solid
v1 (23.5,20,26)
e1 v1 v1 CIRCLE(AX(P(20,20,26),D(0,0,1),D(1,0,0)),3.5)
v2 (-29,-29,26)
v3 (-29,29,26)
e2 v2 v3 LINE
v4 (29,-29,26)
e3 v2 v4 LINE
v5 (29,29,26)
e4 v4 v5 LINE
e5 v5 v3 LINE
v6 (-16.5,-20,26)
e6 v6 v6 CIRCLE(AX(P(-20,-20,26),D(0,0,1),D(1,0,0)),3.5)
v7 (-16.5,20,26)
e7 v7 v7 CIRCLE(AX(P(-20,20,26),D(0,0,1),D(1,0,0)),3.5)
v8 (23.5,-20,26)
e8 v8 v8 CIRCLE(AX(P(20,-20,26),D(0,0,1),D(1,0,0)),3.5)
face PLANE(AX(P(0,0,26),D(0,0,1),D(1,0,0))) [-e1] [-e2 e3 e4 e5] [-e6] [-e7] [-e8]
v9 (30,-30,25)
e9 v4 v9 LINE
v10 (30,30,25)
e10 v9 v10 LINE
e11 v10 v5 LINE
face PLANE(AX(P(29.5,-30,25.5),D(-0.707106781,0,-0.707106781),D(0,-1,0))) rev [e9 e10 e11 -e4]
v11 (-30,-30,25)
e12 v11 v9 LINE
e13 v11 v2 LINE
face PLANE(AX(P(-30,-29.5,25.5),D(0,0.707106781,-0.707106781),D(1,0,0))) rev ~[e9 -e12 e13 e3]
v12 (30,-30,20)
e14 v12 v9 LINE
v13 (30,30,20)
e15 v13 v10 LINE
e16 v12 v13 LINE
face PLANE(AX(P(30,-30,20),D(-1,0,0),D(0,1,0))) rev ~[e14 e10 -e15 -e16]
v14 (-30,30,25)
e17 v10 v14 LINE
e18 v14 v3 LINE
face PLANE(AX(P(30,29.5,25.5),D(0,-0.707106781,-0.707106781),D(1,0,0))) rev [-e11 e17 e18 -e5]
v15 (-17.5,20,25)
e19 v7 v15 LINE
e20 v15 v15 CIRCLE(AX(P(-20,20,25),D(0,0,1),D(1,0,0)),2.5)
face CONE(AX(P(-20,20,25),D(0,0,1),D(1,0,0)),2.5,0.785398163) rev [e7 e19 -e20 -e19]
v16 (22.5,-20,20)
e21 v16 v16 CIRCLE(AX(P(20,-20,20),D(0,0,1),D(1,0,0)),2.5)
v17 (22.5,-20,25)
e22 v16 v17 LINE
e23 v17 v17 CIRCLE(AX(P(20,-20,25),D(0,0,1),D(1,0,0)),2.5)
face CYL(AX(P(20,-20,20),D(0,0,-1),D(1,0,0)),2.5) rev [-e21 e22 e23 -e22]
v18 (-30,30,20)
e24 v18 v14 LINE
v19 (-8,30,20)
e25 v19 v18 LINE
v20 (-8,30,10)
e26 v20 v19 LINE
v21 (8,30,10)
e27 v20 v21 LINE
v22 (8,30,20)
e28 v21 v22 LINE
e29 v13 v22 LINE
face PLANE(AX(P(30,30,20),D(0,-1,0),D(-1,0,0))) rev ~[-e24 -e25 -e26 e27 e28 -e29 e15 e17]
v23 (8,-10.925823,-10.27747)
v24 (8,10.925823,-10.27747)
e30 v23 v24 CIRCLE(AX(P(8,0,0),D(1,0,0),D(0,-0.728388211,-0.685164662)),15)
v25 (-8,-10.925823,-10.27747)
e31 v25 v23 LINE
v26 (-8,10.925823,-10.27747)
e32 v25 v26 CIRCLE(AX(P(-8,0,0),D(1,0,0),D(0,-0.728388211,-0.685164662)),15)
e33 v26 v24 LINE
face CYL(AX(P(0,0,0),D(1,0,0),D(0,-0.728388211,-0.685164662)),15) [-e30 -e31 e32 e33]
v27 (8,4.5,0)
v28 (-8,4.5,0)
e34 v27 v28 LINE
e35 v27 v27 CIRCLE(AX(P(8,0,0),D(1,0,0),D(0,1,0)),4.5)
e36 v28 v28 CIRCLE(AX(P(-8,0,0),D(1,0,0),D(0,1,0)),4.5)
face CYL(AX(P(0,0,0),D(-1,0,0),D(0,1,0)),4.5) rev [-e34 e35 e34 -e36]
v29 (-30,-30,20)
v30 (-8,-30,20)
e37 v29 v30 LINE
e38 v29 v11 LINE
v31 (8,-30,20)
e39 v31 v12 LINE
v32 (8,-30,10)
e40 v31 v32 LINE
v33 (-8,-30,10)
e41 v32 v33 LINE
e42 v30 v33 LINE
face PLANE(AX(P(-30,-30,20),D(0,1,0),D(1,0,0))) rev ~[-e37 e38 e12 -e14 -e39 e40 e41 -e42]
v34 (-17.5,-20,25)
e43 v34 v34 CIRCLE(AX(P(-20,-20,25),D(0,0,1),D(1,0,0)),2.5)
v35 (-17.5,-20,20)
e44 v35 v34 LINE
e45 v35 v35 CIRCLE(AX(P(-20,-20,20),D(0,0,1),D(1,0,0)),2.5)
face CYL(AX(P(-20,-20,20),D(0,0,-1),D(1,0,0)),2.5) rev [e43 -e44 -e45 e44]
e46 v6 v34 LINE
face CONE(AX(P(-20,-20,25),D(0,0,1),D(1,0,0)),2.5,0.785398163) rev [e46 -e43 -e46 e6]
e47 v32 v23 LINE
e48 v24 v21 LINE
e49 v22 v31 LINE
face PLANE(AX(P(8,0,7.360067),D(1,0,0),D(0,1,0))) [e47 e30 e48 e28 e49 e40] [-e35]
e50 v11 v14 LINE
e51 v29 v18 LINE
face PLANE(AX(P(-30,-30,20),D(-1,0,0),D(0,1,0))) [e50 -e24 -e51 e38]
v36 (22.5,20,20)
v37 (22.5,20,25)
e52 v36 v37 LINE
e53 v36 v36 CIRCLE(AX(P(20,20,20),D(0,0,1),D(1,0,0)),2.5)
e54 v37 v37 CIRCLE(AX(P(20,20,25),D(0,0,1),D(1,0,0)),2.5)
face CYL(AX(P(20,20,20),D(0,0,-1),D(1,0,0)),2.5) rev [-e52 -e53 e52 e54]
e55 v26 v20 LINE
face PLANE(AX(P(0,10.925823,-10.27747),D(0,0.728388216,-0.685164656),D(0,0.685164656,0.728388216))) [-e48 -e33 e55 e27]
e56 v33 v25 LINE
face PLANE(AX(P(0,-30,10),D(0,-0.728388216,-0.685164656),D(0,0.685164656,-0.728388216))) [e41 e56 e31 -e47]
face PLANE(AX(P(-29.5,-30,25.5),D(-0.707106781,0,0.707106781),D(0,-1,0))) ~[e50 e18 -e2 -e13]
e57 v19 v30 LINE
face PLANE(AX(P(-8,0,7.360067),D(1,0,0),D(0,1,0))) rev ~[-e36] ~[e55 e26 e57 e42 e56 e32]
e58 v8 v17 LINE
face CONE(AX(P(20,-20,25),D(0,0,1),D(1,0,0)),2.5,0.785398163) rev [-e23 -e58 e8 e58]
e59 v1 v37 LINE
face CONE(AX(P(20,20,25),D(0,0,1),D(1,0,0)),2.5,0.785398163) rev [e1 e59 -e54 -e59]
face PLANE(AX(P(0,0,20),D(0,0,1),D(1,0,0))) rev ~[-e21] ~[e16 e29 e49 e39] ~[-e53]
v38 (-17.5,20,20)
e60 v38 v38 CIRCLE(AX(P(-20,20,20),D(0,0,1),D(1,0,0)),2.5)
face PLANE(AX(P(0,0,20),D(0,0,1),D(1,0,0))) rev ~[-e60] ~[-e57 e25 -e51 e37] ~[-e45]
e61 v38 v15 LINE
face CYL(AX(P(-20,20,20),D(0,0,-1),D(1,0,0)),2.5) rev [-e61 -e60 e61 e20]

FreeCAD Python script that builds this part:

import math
import FreeCAD as App
import Part
import Sketcher
from FreeCAD import Vector


def edges_at(feature, points):
    """Names of the edges that pass closest to the given points."""
    edges = feature.Shape.Edges
    near = lambda p: min(range(len(edges)), key=lambda i: edges[i].distToShape(Part.Vertex(*p))[0])
    return sorted({f"Edge{near(p) + 1}" for p in points})

doc = App.newDocument("Part")
body = doc.addObject("PartDesign::Body", "Body")

sketch1 = body.newObject("Sketcher::SketchObject", "Sketch")
sketch1.AttachmentSupport = (doc.getObject("YZ_Plane"), [""])
sketch1.MapMode = "FlatFace"
sketch1.addGeometry([
    Part.LineSegment(Vector(-30, 10, 0), Vector(-10.9, -10.3, 0)),
    Part.ArcOfCircle(Part.Circle(Vector(0, 0, 0), Vector(0, 0, 1), 15), math.radians(-137), math.radians(-43)),
    Part.LineSegment(Vector(10.9, -10.3, 0), Vector(30, 10, 0)),
    Part.LineSegment(Vector(30, 10, 0), Vector(30, 20, 0)),
    Part.LineSegment(Vector(30, 20, 0), Vector(-30, 20, 0)),
    Part.LineSegment(Vector(-30, 20, 0), Vector(-30, 10, 0)),
    Part.Circle(Vector(0, 0, 0), Vector(0, 0, 1), 4.5),
], False)
sketch1.addConstraint([
    Sketcher.Constraint("Tangent", 0, 2, 1, 1),
    Sketcher.Constraint("Tangent", 1, 2, 2, 1),
    Sketcher.Constraint("Coincident", 2, 2, 3, 1),
    Sketcher.Constraint("Coincident", 3, 2, 4, 1),
    Sketcher.Constraint("Coincident", 4, 2, 5, 1),
    Sketcher.Constraint("Coincident", 5, 2, 0, 1),
    Sketcher.Constraint("Vertical", 3),
    Sketcher.Constraint("Horizontal", 4),
    Sketcher.Constraint("Vertical", 5),
    Sketcher.Constraint("Coincident", 1, 3, -1, 1),
    Sketcher.Constraint("Coincident", 6, 3, -1, 1),
    Sketcher.Constraint("Symmetric", 2, 2, 5, 2, -2),
    Sketcher.Constraint("Diameter", 6, 9.0),
    Sketcher.Constraint("Radius", 1, 15.0),
    Sketcher.Constraint("DistanceX", 4, 2, 4, 1, 60.0),
    Sketcher.Constraint("DistanceY", 3, 1, 3, 2, 10.0),
    Sketcher.Constraint("DistanceY", -1, 1, 2, 2, 10.0),
])
pad1 = body.newObject("PartDesign::Pad", "Pad")
pad1.Profile = sketch1
pad1.Length = 16
pad1.Midplane = True

sketch2 = body.newObject("Sketcher::SketchObject", "Sketch001")
sketch2.AttachmentSupport = (doc.getObject("XY_Plane"), [""])
sketch2.MapMode = "FlatFace"
sketch2.AttachmentOffset = App.Placement(Vector(0, 0, 20), App.Rotation())
sketch2.addGeometry([
    Part.LineSegment(Vector(30, 30, 0), Vector(-30, 30, 0)),
    Part.LineSegment(Vector(-30, 30, 0), Vector(-30, -30, 0)),
    Part.LineSegment(Vector(-30, -30, 0), Vector(30, -30, 0)),
    Part.LineSegment(Vector(30, -30, 0), Vector(30, 30, 0)),
    Part.Circle(Vector(-20, -20, 0), Vector(0, 0, 1), 2.5),
    Part.Circle(Vector(20, -20, 0), Vector(0, 0, 1), 2.5),
    Part.Circle(Vector(-20, 20, 0), Vector(0, 0, 1), 2.5),
    Part.Circle(Vector(20, 20, 0), Vector(0, 0, 1), 2.5),
], False)
sketch2.addConstraint([
    Sketcher.Constraint("Coincident", 0, 2, 1, 1),
    Sketcher.Constraint("Coincident", 1, 2, 2, 1),
    Sketcher.Constraint("Coincident", 2, 2, 3, 1),
    Sketcher.Constraint("Coincident", 3, 2, 0, 1),
    Sketcher.Constraint("Horizontal", 0),
    Sketcher.Constraint("Vertical", 1),
    Sketcher.Constraint("Horizontal", 2),
    Sketcher.Constraint("Vertical", 3),
    Sketcher.Constraint("Equal", 4, 5),
    Sketcher.Constraint("Equal", 5, 6),
    Sketcher.Constraint("Equal", 6, 7),
    Sketcher.Constraint("Symmetric", 5, 3, 6, 3, -1, 1),
    Sketcher.Constraint("Symmetric", 4, 3, 7, 3, -1, 1),
    Sketcher.Constraint("Symmetric", 0, 2, 2, 2, -1, 1),
    Sketcher.Constraint("Symmetric", 4, 3, 5, 3, -2),
    Sketcher.Constraint("Equal", 2, 1),
    Sketcher.Constraint("Diameter", 4, 5.0),
    Sketcher.Constraint("DistanceX", 0, 2, 0, 1, 60.0),
    Sketcher.Constraint("DistanceX", 4, 3, -1, 1, 20.0),
    Sketcher.Constraint("DistanceY", 4, 3, -1, 1, 20.0),
])
pad2 = body.newObject("PartDesign::Pad", "Pad001")
pad2.Profile = sketch2
pad2.Length = 6
doc.recompute()

chamfer = body.newObject("PartDesign::Chamfer", "Chamfer")
chamfer.Base = (pad2, edges_at(pad2, [
    (0, 30, 26),
    (-30, 0, 26),
    (0, -30, 26),
    (30, 0, 26),
    (17.5, 20, 26),
    (17.5, -20, 26),
    (-22.5, 20, 26),
    (-22.5, -20, 26),
]))
chamfer.Size = 1

doc.recompute()
